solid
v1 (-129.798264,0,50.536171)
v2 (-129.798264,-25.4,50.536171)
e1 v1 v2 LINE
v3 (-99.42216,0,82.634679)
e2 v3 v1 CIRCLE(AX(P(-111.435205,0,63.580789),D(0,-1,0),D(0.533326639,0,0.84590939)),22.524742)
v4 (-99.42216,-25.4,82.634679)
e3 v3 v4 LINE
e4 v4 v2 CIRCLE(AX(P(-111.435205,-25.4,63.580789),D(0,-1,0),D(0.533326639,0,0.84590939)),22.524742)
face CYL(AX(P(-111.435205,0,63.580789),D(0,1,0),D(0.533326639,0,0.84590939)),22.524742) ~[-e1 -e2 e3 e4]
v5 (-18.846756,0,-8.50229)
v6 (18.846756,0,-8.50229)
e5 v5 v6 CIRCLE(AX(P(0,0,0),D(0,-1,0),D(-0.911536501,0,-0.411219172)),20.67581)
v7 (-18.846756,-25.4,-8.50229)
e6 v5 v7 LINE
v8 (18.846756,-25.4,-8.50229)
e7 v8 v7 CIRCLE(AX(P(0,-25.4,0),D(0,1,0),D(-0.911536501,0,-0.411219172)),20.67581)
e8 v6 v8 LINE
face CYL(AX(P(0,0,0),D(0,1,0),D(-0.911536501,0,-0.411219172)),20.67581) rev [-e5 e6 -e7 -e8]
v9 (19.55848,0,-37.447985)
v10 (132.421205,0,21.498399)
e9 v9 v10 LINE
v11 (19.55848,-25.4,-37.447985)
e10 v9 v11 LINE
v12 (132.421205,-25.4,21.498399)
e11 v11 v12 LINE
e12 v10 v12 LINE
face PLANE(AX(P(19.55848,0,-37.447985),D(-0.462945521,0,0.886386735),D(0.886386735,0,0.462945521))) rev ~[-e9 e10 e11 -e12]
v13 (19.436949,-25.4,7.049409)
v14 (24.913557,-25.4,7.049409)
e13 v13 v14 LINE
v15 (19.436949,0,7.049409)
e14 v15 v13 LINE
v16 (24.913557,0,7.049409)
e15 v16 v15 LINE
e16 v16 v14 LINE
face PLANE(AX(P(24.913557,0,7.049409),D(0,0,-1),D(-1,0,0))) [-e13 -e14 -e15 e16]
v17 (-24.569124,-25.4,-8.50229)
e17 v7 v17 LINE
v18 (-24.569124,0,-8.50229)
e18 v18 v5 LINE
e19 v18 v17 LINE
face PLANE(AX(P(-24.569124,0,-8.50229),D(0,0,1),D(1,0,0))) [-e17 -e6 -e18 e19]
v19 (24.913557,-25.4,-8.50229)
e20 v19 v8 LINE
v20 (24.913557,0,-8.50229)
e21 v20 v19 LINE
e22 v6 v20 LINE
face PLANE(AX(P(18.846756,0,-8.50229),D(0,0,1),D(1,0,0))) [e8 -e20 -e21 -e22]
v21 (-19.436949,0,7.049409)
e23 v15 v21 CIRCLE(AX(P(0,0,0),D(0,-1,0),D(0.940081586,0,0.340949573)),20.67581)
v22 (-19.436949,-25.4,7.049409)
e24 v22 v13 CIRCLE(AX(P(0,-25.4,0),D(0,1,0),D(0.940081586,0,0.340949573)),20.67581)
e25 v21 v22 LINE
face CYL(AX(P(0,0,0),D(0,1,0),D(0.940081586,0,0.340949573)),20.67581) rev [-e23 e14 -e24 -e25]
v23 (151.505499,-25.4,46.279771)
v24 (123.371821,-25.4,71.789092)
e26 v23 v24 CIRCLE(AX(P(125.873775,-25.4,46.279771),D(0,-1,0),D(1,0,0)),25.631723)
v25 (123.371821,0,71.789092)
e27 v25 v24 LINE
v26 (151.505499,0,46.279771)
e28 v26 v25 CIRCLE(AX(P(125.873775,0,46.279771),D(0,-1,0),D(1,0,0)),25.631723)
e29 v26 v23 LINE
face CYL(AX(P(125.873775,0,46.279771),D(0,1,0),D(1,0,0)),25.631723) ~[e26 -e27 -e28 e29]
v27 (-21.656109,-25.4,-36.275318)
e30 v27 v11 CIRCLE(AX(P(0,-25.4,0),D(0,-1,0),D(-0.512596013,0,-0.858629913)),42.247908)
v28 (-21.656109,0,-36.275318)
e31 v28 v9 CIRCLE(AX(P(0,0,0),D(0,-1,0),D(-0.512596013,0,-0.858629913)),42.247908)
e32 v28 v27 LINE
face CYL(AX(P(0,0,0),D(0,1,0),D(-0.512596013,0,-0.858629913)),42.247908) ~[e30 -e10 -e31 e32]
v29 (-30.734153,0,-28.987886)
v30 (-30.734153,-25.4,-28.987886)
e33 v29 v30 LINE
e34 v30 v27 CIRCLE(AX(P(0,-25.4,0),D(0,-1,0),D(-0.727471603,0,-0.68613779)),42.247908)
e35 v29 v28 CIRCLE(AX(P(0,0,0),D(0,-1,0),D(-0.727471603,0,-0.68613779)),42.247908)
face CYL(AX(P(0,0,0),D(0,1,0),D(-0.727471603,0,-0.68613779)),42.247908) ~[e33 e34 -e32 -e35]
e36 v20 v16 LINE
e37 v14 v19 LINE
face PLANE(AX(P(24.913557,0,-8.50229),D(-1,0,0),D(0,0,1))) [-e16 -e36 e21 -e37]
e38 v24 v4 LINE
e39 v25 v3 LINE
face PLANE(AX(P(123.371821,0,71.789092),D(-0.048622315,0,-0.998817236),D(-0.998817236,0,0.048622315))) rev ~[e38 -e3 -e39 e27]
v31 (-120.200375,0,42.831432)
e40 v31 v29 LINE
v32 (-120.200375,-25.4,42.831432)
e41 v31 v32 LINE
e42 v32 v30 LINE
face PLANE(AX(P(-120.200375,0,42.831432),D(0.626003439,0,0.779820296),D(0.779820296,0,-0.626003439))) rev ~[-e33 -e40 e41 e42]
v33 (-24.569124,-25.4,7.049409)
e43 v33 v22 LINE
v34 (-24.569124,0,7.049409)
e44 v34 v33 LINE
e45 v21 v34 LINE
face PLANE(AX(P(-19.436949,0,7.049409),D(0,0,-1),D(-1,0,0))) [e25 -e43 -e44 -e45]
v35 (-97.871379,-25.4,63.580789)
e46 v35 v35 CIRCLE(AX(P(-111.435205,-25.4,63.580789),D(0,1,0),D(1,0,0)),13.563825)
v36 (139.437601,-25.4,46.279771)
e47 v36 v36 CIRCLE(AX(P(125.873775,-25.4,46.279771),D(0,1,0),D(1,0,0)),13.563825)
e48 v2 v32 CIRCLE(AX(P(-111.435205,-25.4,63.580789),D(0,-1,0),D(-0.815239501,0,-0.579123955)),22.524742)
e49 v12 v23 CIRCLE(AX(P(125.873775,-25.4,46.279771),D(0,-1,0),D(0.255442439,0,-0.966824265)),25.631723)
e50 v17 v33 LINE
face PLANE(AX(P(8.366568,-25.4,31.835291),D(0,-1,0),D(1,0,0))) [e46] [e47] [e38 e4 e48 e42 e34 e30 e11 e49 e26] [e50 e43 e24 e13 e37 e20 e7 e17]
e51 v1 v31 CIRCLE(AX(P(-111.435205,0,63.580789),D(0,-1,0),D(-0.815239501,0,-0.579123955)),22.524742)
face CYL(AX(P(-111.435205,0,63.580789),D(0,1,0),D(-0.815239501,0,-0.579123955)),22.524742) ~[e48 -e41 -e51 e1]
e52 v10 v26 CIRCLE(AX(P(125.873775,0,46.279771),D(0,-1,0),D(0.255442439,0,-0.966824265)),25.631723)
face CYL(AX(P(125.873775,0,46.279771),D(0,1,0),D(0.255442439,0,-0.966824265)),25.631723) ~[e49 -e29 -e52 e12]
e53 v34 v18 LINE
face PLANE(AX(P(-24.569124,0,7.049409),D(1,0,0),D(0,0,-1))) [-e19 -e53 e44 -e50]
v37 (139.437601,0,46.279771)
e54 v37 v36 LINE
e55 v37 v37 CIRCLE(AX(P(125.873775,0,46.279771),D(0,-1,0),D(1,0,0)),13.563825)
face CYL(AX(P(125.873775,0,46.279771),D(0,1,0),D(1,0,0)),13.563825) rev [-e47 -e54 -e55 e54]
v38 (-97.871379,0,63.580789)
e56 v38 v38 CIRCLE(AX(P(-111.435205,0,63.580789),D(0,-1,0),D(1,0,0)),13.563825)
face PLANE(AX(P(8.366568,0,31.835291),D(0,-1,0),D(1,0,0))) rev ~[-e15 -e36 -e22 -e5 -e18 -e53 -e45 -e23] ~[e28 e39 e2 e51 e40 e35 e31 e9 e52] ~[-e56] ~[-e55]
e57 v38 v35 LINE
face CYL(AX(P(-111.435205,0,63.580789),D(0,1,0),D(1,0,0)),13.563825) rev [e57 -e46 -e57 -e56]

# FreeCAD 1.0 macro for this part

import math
import FreeCAD as App
import Part
import Sketcher
from FreeCAD import Vector
Q = App.Units.Quantity

doc = App.newDocument("Part")
params = doc.addObject("Spreadsheet::Sheet", "Params")
for row, (alias, value) in enumerate([
    ("pad1_length", "1 in"),
    ("pocket1_length", "1.64 in"),
    ("pocket2_length", "1.03 in"),
], start=1):
    params.set(f"A{row}", alias)
    params.set(f"B{row}", "=" + value)
    params.setAlias(f"B{row}", alias)

body = doc.addObject("PartDesign::Body", "Body")

# Sketch on XZ plane
sketch1 = doc.addObject("Sketcher::SketchObject", "Sketch")
body.addObject(sketch1)
sketch1.AttachmentSupport = (doc.XZ_Plane, [""])
sketch1.MapMode = "FlatFace"
sketch1.addGeometry([
    Part.LineSegment(Vector(20, -37, 0), Vector(132, 21, 0)),  # 0
    Part.ArcOfCircle(Part.Circle(Vector(126, 46, 0), Vector(0, 0, 1), 26), math.radians(-75), math.radians(0)),  # 1
    Part.ArcOfCircle(Part.Circle(Vector(126, 46, 0), Vector(0, 0, 1), 26), math.radians(0), math.radians(96)),  # 2
    Part.LineSegment(Vector(123, 72, 0), Vector(-99, 83, 0)),  # 3
    Part.ArcOfCircle(Part.Circle(Vector(-111, 64, 0), Vector(0, 0, 1), 23), math.radians(58), math.radians(215)),  # 4
    Part.ArcOfCircle(Part.Circle(Vector(-111, 64, 0), Vector(0, 0, 1), 23), math.radians(-145), math.radians(-113)),  # 5
    Part.LineSegment(Vector(-120, 43, 0), Vector(-31, -29, 0)),  # 6
    Part.ArcOfCircle(Part.Circle(Vector(0, 0, 0), Vector(0, 0, 1), 42), math.radians(-136.67), math.radians(-120.84)),  # 7
    Part.ArcOfCircle(Part.Circle(Vector(0, 0, 0), Vector(0, 0, 1), 42), math.radians(-121), math.radians(-62)),  # 8
], False)
sketch1.addConstraint([
    Sketcher.Constraint("Coincident", 0, 2, 1, 1),
    Sketcher.Constraint("Tangent", 1, 2, 2, 1),
    Sketcher.Constraint("Coincident", 2, 2, 3, 1),
    Sketcher.Constraint("Coincident", 3, 2, 4, 1),
    Sketcher.Constraint("Tangent", 4, 2, 5, 1),
    Sketcher.Constraint("Coincident", 5, 2, 6, 1),
    Sketcher.Constraint("Coincident", 6, 2, 7, 1),
    Sketcher.Constraint("Tangent", 7, 2, 8, 1),
    Sketcher.Constraint("Tangent", 8, 2, 0, 1),
    Sketcher.Constraint("Coincident", 7, 3, -1, 1),
    Sketcher.Constraint("Equal", 1, 2),
    Sketcher.Constraint("Equal", 4, 5),
    Sketcher.Constraint("Equal", 7, 8),
    Sketcher.Constraint("Horizontal", 2, 3, 1, 2),
    Sketcher.Constraint("Radius", 4, 22.524742),
    Sketcher.Constraint("Distance", 6, Q("4.5167998 in")),
    Sketcher.Constraint("Radius", 1, 25.631723),
    Sketcher.Constraint("Radius", 7, 42.247908),
    Sketcher.Constraint("DistanceY", -1, 1, 0, 2, 21.498399),
    Sketcher.Constraint("DistanceX", -1, 1, 1, 2, 151.505499),
    Sketcher.Constraint("DistanceY", 8, 2, 6, 2, 8.460099),
    Sketcher.Constraint("DistanceY", -1, 1, 1, 3, 46.279771),
    Sketcher.Constraint("DistanceY", -1, 1, 4, 3, 63.580789),
    Sketcher.Constraint("DistanceX", -1, 1, 2, 2, 123.371821),
    Sketcher.Constraint("DistanceX", 3, 2, -1, 1, 99.42216),
    Sketcher.Constraint("DistanceY", -1, 1, 3, 2, 82.634679),
    Sketcher.Constraint("DistanceY", -1, 1, 4, 2, 50.536171),
    Sketcher.Constraint("DistanceX", 7, 2, -1, 1, 21.656109),
])
pad1 = doc.addObject("PartDesign::Pad", "Pad")
body.addObject(pad1)
pad1.Profile = sketch1
pad1.setExpression("Length", "Params.pad1_length")

# Sketch on XZ plane
sketch2 = doc.addObject("Sketcher::SketchObject", "Sketch001")
body.addObject(sketch2)
sketch2.AttachmentSupport = (doc.XZ_Plane, [""])
sketch2.MapMode = "FlatFace"
sketch2.addGeometry([
    Part.ArcOfCircle(Part.Circle(Vector(0, 0, 0), Vector(0, 0, 1), 21), math.radians(-156), math.radians(-24)),  # 0
    Part.LineSegment(Vector(19, -9, 0), Vector(25, -9, 0)),  # 1
    Part.LineSegment(Vector(25, -9, 0), Vector(25, 7, 0)),  # 2
    Part.LineSegment(Vector(25, 7, 0), Vector(19, 7, 0)),  # 3
    Part.ArcOfCircle(Part.Circle(Vector(0, 0, 0), Vector(0, 0, 1), 21), math.radians(20), math.radians(160)),  # 4
    Part.LineSegment(Vector(-19, 7, 0), Vector(-25, 7, 0)),  # 5
    Part.LineSegment(Vector(-25, 7, 0), Vector(-25, -9, 0)),  # 6
    Part.LineSegment(Vector(-25, -9, 0), Vector(-19, -9, 0)),  # 7
], False)
sketch2.addConstraint([
    Sketcher.Constraint("Coincident", 0, 2, 1, 1),
    Sketcher.Constraint("Coincident", 1, 2, 2, 1),
    Sketcher.Constraint("Coincident", 2, 2, 3, 1),
    Sketcher.Constraint("Coincident", 3, 2, 4, 1),
    Sketcher.Constraint("Coincident", 4, 2, 5, 1),
    Sketcher.Constraint("Coincident", 5, 2, 6, 1),
    Sketcher.Constraint("Coincident", 6, 2, 7, 1),
    Sketcher.Constraint("Coincident", 7, 2, 0, 1),
    Sketcher.Constraint("Horizontal", 1),
    Sketcher.Constraint("Vertical", 2),
    Sketcher.Constraint("Horizontal", 3),
    Sketcher.Constraint("Horizontal", 5),
    Sketcher.Constraint("Vertical", 6),
    Sketcher.Constraint("Horizontal", 7),
    Sketcher.Constraint("Coincident", 0, 3, -1, 1),
    Sketcher.Constraint("Coincident", 4, 3, -1, 1),
    Sketcher.Constraint("Equal", 0, 4),
    Sketcher.Constraint("Horizontal", 3, 2, 4, 2),
    Sketcher.Constraint("Horizontal", 1, 2, 6, 2),
    Sketcher.Constraint("Radius", 0, 20.67581),
    Sketcher.Constraint("DistanceX", 1, 1, 1, 2, 6.066801),
    Sketcher.Constraint("DistanceY", 2, 1, 2, 2, 15.551698),
    Sketcher.Constraint("DistanceX", 3, 2, 3, 1, 5.476608),
    Sketcher.Constraint("DistanceX", 7, 1, 7, 2, 5.722368),
])
pocket1 = doc.addObject("PartDesign::Pocket", "Pocket")
body.addObject(pocket1)
pocket1.Profile = sketch2
pocket1.setExpression("Length", "Params.pocket1_length")
pocket1.Reversed = True

# Sketch on XZ plane
sketch3 = doc.addObject("Sketcher::SketchObject", "Sketch002")
body.addObject(sketch3)
sketch3.AttachmentSupport = (doc.XZ_Plane, [""])
sketch3.MapMode = "FlatFace"
sketch3.addGeometry([
    Part.Circle(Vector(-111, 64, 0), Vector(0, 0, 1), 14),
    Part.Circle(Vector(126, 46, 0), Vector(0, 0, 1), 14),
], False)
sketch3.addConstraint([
    Sketcher.Constraint("Equal", 0, 1),
    Sketcher.Constraint("Diameter", 0, 27.127651),
    Sketcher.Constraint("DistanceY", -1, 1, 0, 3, 63.580789),
    Sketcher.Constraint("DistanceY", -1, 1, 1, 3, 46.279771),
    Sketcher.Constraint("DistanceX", 0, 3, 1, 3, 237.30898),
    Sketcher.Constraint("DistanceX", 0, 3, -1, 1, 111.435205),
])
pocket2 = doc.addObject("PartDesign::Pocket", "Pocket001")
body.addObject(pocket2)
pocket2.Profile = sketch3
pocket2.setExpression("Length", "Params.pocket2_length")
pocket2.Reversed = True

doc.recompute()
